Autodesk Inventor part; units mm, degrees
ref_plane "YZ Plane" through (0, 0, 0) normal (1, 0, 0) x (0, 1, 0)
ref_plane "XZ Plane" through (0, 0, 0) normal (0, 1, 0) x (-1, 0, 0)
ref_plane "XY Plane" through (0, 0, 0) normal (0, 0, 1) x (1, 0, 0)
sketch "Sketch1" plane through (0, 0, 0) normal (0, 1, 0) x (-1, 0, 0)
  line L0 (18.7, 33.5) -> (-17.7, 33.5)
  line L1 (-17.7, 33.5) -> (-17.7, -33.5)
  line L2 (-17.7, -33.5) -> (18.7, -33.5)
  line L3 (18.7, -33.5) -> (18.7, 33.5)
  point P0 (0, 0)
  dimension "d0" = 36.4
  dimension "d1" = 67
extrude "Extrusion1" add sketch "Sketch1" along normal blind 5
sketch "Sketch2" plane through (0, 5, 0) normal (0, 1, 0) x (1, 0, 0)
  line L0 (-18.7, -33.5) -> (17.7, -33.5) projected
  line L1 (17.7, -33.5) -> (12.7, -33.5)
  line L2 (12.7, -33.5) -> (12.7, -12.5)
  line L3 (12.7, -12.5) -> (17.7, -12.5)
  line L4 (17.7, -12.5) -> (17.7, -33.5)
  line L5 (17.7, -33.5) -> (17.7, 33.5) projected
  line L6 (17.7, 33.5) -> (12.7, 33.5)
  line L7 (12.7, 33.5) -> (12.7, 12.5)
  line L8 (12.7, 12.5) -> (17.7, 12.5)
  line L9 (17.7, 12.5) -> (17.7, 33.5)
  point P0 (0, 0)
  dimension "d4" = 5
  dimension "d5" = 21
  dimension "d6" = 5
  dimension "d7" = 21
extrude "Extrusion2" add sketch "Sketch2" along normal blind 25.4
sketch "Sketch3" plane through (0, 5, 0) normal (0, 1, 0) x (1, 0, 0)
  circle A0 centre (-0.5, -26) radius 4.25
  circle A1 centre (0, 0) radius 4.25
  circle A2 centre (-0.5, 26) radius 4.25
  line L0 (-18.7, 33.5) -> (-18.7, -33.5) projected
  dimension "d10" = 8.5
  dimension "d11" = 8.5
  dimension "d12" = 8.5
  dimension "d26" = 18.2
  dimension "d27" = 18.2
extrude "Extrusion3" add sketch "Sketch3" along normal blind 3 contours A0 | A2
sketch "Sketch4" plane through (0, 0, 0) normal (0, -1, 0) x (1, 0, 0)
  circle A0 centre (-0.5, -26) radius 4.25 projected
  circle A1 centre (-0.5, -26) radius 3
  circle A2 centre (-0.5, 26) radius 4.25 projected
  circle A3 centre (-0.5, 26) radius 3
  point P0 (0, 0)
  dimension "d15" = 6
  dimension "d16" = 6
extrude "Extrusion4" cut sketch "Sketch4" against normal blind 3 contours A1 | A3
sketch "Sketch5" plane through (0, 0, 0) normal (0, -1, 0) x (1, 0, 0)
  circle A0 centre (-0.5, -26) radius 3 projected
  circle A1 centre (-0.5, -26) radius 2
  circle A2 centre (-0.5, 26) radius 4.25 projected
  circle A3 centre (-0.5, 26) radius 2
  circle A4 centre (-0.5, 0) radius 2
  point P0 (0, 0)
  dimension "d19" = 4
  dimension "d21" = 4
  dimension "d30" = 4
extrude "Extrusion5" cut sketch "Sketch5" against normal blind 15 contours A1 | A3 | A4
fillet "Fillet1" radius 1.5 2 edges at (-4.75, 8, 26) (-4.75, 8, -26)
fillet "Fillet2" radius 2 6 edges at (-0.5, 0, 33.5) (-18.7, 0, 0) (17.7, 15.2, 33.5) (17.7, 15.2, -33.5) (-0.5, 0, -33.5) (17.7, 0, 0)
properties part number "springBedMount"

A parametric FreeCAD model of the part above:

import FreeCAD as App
import Part
import Sketcher
from FreeCAD import Vector


def edges_at(feature, points):
    """Names of the edges that pass closest to the given points."""
    edges = feature.Shape.Edges
    near = lambda p: min(range(len(edges)), key=lambda i: edges[i].distToShape(Part.Vertex(*p))[0])
    return sorted({f"Edge{near(p) + 1}" for p in points})


def add_polygon(sketch, points):
    """Adds a closed chain of lines whose ends are joined by coincident constraints."""
    first, n = sketch.GeometryCount, len(points)
    for a, b in zip(points, points[1:] + points[:1]):
        sketch.addGeometry(Part.LineSegment(App.Vector(*a, 0), App.Vector(*b, 0)), False)
    for i in range(n):
        sketch.addConstraint(Sketcher.Constraint("Coincident", first + i, 2, first + (i + 1) % n, 1))

doc = App.newDocument("Part")
body = doc.addObject("PartDesign::Body", "Body")

# Sketch on XZ plane
sketch1 = doc.addObject("Sketcher::SketchObject", "Sketch")
body.addObject(sketch1)
sketch1.AttachmentSupport = (doc.XZ_Plane, [""])
sketch1.MapMode = "FlatFace"
add_polygon(sketch1, [(-19, -34), (-19, 34), (18, 34), (18, -34)])  # lines 0-3
sketch1.addConstraint([
    Sketcher.Constraint("Vertical", 0),
    Sketcher.Constraint("Horizontal", 1),
    Sketcher.Constraint("Vertical", 2),
    Sketcher.Constraint("Horizontal", 3),
    Sketcher.Constraint("DistanceY", 0, 1, 0, 2, 67.0),
    Sketcher.Constraint("DistanceX", 1, 1, 1, 2, 36.4),
    Sketcher.Constraint("DistanceX", 0, 2, -1, 1, 18.7),
    Sketcher.Constraint("DistanceY", -1, 1, 0, 2, 33.5),
])
pad1 = doc.addObject("PartDesign::Pad", "Pad")
body.addObject(pad1)
pad1.Profile = sketch1
pad1.Length = 5
pad1.Reversed = True

# Sketch on XZ plane
sketch2 = doc.addObject("Sketcher::SketchObject", "Sketch001")
body.addObject(sketch2)
sketch2.AttachmentSupport = (doc.XZ_Plane, [""])
sketch2.MapMode = "FlatFace"
sketch2.AttachmentOffset = App.Placement(Vector(0, 0, -5), App.Rotation())
add_polygon(sketch2, [(13, 12), (13, 34), (18, 34), (18, 12)])  # lines 0-3
add_polygon(sketch2, [(13, -12), (18, -12), (18, -34), (13, -34)])  # lines 4-7
sketch2.addConstraint([
    Sketcher.Constraint("Vertical", 0),
    Sketcher.Constraint("Horizontal", 1),
    Sketcher.Constraint("Vertical", 2),
    Sketcher.Constraint("Horizontal", 3),
    Sketcher.Constraint("Horizontal", 4),
    Sketcher.Constraint("Vertical", 5),
    Sketcher.Constraint("Horizontal", 6),
    Sketcher.Constraint("Vertical", 7),
    Sketcher.Constraint("Symmetric", 2, 2, 4, 2, -1),
    Sketcher.Constraint("Symmetric", 0, 2, 6, 2, -1),
    Sketcher.Constraint("DistanceX", 1, 1, 1, 2, 5.0),
    Sketcher.Constraint("DistanceY", 0, 1, 0, 2, 21.0),
    Sketcher.Constraint("DistanceY", 4, 2, 2, 2, 25.0),
    Sketcher.Constraint("DistanceX", -1, 1, 0, 2, 12.7),
])
pad2 = doc.addObject("PartDesign::Pad", "Pad001")
body.addObject(pad2)
pad2.Profile = sketch2
pad2.Length = 25.4
pad2.Reversed = True

# Sketch on XZ plane
sketch3 = doc.addObject("Sketcher::SketchObject", "Sketch002")
body.addObject(sketch3)
sketch3.AttachmentSupport = (doc.XZ_Plane, [""])
sketch3.MapMode = "FlatFace"
sketch3.AttachmentOffset = App.Placement(Vector(0, 0, -5), App.Rotation())
sketch3.addGeometry([
    Part.Circle(Vector(-0.5, 26, 0), Vector(0, 0, 1), 4.2),
    Part.Circle(Vector(-0.5, -26, 0), Vector(0, 0, 1), 4.2),
], False)
sketch3.addConstraint([
    Sketcher.Constraint("Equal", 0, 1),
    Sketcher.Constraint("Symmetric", 0, 3, 1, 3, -1),
    Sketcher.Constraint("Diameter", 0, 8.5),
    Sketcher.Constraint("DistanceY", -1, 1, 0, 3, 26.0),
    Sketcher.Constraint("DistanceX", 0, 3, -1, 1, 0.5),
])
pad3 = doc.addObject("PartDesign::Pad", "Pad002")
body.addObject(pad3)
pad3.Profile = sketch3
pad3.Length = 3
pad3.Reversed = True

# Sketch on XZ plane
sketch4 = doc.addObject("Sketcher::SketchObject", "Sketch003")
body.addObject(sketch4)
sketch4.AttachmentSupport = (doc.XZ_Plane, [""])
sketch4.MapMode = "FlatFace"
sketch4.addGeometry([
    Part.Circle(Vector(-0.5, -26, 0), Vector(0, 0, 1), 3),
    Part.Circle(Vector(-0.5, 26, 0), Vector(0, 0, 1), 3),
], False)
sketch4.addConstraint([
    Sketcher.Constraint("Equal", 0, 1),
    Sketcher.Constraint("Symmetric", 0, 3, 1, 3, -1),
    Sketcher.Constraint("Diameter", 0, 6.0),
    Sketcher.Constraint("DistanceY", 0, 3, -1, 1, 26.0),
    Sketcher.Constraint("DistanceX", 0, 3, -1, 1, 0.5),
])
pocket1 = doc.addObject("PartDesign::Pocket", "Pocket")
body.addObject(pocket1)
pocket1.Profile = sketch4
pocket1.Length = 3

# Sketch on XZ plane
sketch5 = doc.addObject("Sketcher::SketchObject", "Sketch004")
body.addObject(sketch5)
sketch5.AttachmentSupport = (doc.XZ_Plane, [""])
sketch5.MapMode = "FlatFace"
sketch5.addGeometry([
    Part.Circle(Vector(-0.5, -26, 0), Vector(0, 0, 1), 2),
    Part.Circle(Vector(-0.5, 26, 0), Vector(0, 0, 1), 2),
    Part.Circle(Vector(-0.5, 0, 0), Vector(0, 0, 1), 2),
], False)
sketch5.addConstraint([
    Sketcher.Constraint("Equal", 0, 1),
    Sketcher.Constraint("Equal", 1, 2),
    Sketcher.Constraint("Symmetric", 0, 3, 1, 3, -1),
    Sketcher.Constraint("PointOnObject", 2, 3, -1),
    Sketcher.Constraint("Vertical", 1, 3, 2, 3),
    Sketcher.Constraint("Diameter", 0, 4.0),
    Sketcher.Constraint("DistanceY", 0, 3, -1, 1, 26.0),
    Sketcher.Constraint("DistanceX", 0, 3, -1, 1, 0.5),
])
pocket2 = doc.addObject("PartDesign::Pocket", "Pocket001")
body.addObject(pocket2)
pocket2.Profile = sketch5
pocket2.Length = 15
doc.recompute()

fillet = doc.addObject("PartDesign::Fillet", "Fillet")
body.addObject(fillet)
fillet.Base = (pocket2, edges_at(pocket2, [(-4.75, 8, 26), (-4.75, 8, -26)]))
fillet.Radius = 1.5
doc.recompute()

fillet2 = doc.addObject("PartDesign::Fillet", "Fillet001")
body.addObject(fillet2)
fillet2.Base = (fillet, edges_at(fillet, [
    (-0.5, 0, 33.5),
    (-18.7, 0, 0),
    (17.7, 15.2, 33.5),
    (17.7, 15.2, -33.5),
    (-0.5, 0, -33.5),
    (17.7, 0, 0),
]))
fillet2.Radius = 2

doc.recompute()
